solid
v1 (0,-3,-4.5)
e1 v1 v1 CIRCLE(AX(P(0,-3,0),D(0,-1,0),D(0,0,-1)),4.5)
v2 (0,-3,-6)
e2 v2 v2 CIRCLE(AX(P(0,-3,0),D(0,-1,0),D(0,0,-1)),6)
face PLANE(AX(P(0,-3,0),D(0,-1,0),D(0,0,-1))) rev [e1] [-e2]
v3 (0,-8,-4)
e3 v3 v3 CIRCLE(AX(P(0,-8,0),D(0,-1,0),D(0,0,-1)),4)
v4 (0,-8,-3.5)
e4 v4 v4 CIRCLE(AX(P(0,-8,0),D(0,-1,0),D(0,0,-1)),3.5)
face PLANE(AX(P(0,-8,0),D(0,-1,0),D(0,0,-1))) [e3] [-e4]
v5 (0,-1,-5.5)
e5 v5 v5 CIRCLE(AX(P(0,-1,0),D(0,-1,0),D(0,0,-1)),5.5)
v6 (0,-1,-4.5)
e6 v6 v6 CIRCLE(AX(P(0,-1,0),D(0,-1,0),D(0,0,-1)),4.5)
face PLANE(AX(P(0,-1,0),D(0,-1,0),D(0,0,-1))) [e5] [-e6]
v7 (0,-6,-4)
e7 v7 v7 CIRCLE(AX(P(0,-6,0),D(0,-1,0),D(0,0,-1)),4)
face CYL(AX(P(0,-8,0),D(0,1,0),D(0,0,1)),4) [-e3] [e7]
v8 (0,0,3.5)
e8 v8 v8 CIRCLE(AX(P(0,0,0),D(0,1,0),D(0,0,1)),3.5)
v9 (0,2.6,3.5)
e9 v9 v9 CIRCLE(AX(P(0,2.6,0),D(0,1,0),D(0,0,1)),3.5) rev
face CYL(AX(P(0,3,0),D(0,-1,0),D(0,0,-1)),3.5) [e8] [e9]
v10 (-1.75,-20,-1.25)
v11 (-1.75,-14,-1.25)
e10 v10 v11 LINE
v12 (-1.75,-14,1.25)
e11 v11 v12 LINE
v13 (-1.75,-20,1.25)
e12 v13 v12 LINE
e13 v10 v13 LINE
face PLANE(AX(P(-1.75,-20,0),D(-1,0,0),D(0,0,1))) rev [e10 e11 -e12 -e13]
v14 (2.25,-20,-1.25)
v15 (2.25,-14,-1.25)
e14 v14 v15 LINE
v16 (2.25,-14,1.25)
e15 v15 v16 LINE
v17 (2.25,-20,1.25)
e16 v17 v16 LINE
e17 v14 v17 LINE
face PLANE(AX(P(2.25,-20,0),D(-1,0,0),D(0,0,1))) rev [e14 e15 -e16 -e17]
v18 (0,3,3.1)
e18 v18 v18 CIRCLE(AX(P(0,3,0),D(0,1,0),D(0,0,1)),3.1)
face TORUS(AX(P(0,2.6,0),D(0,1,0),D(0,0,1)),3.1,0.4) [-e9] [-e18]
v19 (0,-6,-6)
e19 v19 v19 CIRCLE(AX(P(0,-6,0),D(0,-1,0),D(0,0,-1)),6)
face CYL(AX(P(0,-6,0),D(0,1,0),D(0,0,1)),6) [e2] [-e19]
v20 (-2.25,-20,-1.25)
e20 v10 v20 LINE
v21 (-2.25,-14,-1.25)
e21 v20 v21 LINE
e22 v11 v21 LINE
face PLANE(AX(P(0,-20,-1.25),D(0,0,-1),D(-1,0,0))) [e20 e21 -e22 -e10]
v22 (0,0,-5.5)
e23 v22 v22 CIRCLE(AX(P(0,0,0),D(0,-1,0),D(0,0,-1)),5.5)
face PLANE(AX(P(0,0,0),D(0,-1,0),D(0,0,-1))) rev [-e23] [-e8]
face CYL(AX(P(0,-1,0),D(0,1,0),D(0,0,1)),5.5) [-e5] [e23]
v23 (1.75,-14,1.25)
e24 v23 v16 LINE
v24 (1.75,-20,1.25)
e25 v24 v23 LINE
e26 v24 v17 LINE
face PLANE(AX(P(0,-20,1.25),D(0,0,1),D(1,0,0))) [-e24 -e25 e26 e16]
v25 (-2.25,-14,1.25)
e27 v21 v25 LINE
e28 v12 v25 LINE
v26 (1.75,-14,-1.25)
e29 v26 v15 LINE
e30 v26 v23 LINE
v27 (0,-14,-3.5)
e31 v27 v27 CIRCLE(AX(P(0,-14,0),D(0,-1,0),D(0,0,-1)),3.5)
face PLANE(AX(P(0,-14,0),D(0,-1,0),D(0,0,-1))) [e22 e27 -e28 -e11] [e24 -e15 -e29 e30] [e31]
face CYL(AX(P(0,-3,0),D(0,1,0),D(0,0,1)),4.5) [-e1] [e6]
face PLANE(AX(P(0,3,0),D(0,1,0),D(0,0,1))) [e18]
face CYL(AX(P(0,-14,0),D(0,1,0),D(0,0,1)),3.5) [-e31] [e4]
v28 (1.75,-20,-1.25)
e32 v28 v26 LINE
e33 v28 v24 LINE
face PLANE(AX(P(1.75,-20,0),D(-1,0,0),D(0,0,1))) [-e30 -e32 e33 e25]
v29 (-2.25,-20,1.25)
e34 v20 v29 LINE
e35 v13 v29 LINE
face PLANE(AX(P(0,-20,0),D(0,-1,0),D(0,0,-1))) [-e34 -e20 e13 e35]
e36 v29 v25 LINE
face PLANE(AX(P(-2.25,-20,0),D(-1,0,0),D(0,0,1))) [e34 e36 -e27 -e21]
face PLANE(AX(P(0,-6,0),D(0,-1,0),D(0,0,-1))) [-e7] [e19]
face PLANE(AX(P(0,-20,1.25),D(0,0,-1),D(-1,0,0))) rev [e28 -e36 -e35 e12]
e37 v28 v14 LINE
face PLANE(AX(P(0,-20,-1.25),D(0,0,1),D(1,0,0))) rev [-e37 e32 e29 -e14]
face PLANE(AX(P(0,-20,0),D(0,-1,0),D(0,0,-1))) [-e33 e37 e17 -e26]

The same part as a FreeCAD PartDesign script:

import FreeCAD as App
import Part
import Sketcher


def edges_at(feature, points):
    """Names of the edges that pass closest to the given points."""
    edges = feature.Shape.Edges
    near = lambda p: min(range(len(edges)), key=lambda i: edges[i].distToShape(Part.Vertex(*p))[0])
    return sorted({f"Edge{near(p) + 1}" for p in points})

doc = App.newDocument("Part")
params = doc.addObject("Spreadsheet::Sheet", "Params")
for row, (alias, value) in enumerate([
    ("sketch1_diameter", "7 mm"),
    ("pad1_length", "3 mm"),
    ("fillet_radius", "0.4 mm"),
    ("sketch2_diameter", "11 mm"),
    ("pad2_length", "1 mm"),
    ("sketch3_diameter", "9 mm"),
    ("pad3_length", "2 mm"),
    ("sketch4_diameter", "12 mm"),
    ("pad4_length", "3 mm"),
    ("sketch5_diameter", "8 mm"),
    ("pad5_length", "2 mm"),
    ("sketch6_diameter", "7 mm"),
    ("pad6_length", "6 mm"),
    ("sketch7_width", "0.5 mm"),
    ("sketch7_height", "2.5 mm"),
    ("pad7_length", "6 mm"),
], start=1):
    params.set(f"A{row}", alias)
    params.set(f"B{row}", "=" + value)
    params.setAlias(f"B{row}", alias)

body = doc.addObject("PartDesign::Body", "Body")

# Sketch on XZ plane
sketch1 = doc.addObject("Sketcher::SketchObject", "Sketch")
body.addObject(sketch1)
sketch1.AttachmentSupport = (doc.XZ_Plane, [""])
sketch1.MapMode = "FlatFace"
sketch1.addGeometry(Part.Circle(App.Vector(0, 0, 0), App.Vector(0, 0, 1), 3.5), False)
sketch1.addConstraint(Sketcher.Constraint("Coincident", 0, 3, -1, 1))
sketch1.addConstraint(Sketcher.Constraint("Diameter", 0, 7.0))
sketch1.setExpression("Constraints[1]", "Params.sketch1_diameter")
pad1 = doc.addObject("PartDesign::Pad", "Pad")
body.addObject(pad1)
pad1.Profile = sketch1
pad1.setExpression("Length", "Params.pad1_length")
pad1.Reversed = True
doc.recompute()

fillet = doc.addObject("PartDesign::Fillet", "Fillet")
body.addObject(fillet)
fillet.Base = (pad1, edges_at(pad1, [(0, 3, -3.5)]))
fillet.setExpression("Radius", "Params.fillet_radius")

# Sketch on XZ plane
sketch2 = doc.addObject("Sketcher::SketchObject", "Sketch001")
body.addObject(sketch2)
sketch2.AttachmentSupport = (doc.XZ_Plane, [""])
sketch2.MapMode = "FlatFace"
sketch2.addGeometry(Part.Circle(App.Vector(0, 0, 0), App.Vector(0, 0, 1), 6), False)
sketch2.addConstraint(Sketcher.Constraint("Coincident", 0, 3, -1, 1))
sketch2.addConstraint(Sketcher.Constraint("Diameter", 0, 11.0))
sketch2.setExpression("Constraints[1]", "Params.sketch2_diameter")
pad2 = doc.addObject("PartDesign::Pad", "Pad001")
body.addObject(pad2)
pad2.Profile = sketch2
pad2.setExpression("Length", "Params.pad2_length")

# Sketch on XZ plane
sketch3 = doc.addObject("Sketcher::SketchObject", "Sketch002")
body.addObject(sketch3)
sketch3.AttachmentSupport = (doc.XZ_Plane, [""])
sketch3.MapMode = "FlatFace"
sketch3.AttachmentOffset = App.Placement(App.Vector(0, 0, 1), App.Rotation())
sketch3.addGeometry(Part.Circle(App.Vector(0, 0, 0), App.Vector(0, 0, 1), 4.5), False)
sketch3.addConstraint(Sketcher.Constraint("Coincident", 0, 3, -1, 1))
sketch3.addConstraint(Sketcher.Constraint("Diameter", 0, 9.0))
sketch3.setExpression("Constraints[1]", "Params.sketch3_diameter")
pad3 = doc.addObject("PartDesign::Pad", "Pad002")
body.addObject(pad3)
pad3.Profile = sketch3
pad3.setExpression("Length", "Params.pad3_length")

# Sketch on XZ plane
sketch4 = doc.addObject("Sketcher::SketchObject", "Sketch003")
body.addObject(sketch4)
sketch4.AttachmentSupport = (doc.XZ_Plane, [""])
sketch4.MapMode = "FlatFace"
sketch4.AttachmentOffset = App.Placement(App.Vector(0, 0, 3), App.Rotation())
sketch4.addGeometry(Part.Circle(App.Vector(0, 0, 0), App.Vector(0, 0, 1), 6), False)
sketch4.addConstraint(Sketcher.Constraint("Coincident", 0, 3, -1, 1))
sketch4.addConstraint(Sketcher.Constraint("Diameter", 0, 12.0))
sketch4.setExpression("Constraints[1]", "Params.sketch4_diameter")
pad4 = doc.addObject("PartDesign::Pad", "Pad003")
body.addObject(pad4)
pad4.Profile = sketch4
pad4.setExpression("Length", "Params.pad4_length")

# Sketch on XZ plane
sketch5 = doc.addObject("Sketcher::SketchObject", "Sketch004")
body.addObject(sketch5)
sketch5.AttachmentSupport = (doc.XZ_Plane, [""])
sketch5.MapMode = "FlatFace"
sketch5.AttachmentOffset = App.Placement(App.Vector(0, 0, 6), App.Rotation())
sketch5.addGeometry(Part.Circle(App.Vector(0, 0, 0), App.Vector(0, 0, 1), 4), False)
sketch5.addConstraint(Sketcher.Constraint("Coincident", 0, 3, -1, 1))
sketch5.addConstraint(Sketcher.Constraint("Diameter", 0, 8.0))
sketch5.setExpression("Constraints[1]", "Params.sketch5_diameter")
pad5 = doc.addObject("PartDesign::Pad", "Pad004")
body.addObject(pad5)
pad5.Profile = sketch5
pad5.setExpression("Length", "Params.pad5_length")

# Sketch on XZ plane
sketch6 = doc.addObject("Sketcher::SketchObject", "Sketch005")
body.addObject(sketch6)
sketch6.AttachmentSupport = (doc.XZ_Plane, [""])
sketch6.MapMode = "FlatFace"
sketch6.AttachmentOffset = App.Placement(App.Vector(0, 0, 8), App.Rotation())
sketch6.addGeometry(Part.Circle(App.Vector(0, 0, 0), App.Vector(0, 0, 1), 3.5), False)
sketch6.addConstraint(Sketcher.Constraint("Coincident", 0, 3, -1, 1))
sketch6.addConstraint(Sketcher.Constraint("Diameter", 0, 7.0))
sketch6.setExpression("Constraints[1]", "Params.sketch6_diameter")
pad6 = doc.addObject("PartDesign::Pad", "Pad005")
body.addObject(pad6)
pad6.Profile = sketch6
pad6.setExpression("Length", "Params.pad6_length")

# Sketch on XZ plane
sketch7 = doc.addObject("Sketcher::SketchObject", "Sketch006")
body.addObject(sketch7)
sketch7.AttachmentSupport = (doc.XZ_Plane, [""])
sketch7.MapMode = "FlatFace"
sketch7.AttachmentOffset = App.Placement(App.Vector(0, 0, 14), App.Rotation())
sketch7.addGeometry(Part.LineSegment(App.Vector(1.8, 1.2, 0), App.Vector(1.8, -1.2, 0)), False)
sketch7.addGeometry(Part.LineSegment(App.Vector(1.8, -1.2, 0), App.Vector(2.2, -1.2, 0)), False)
sketch7.addGeometry(Part.LineSegment(App.Vector(2.2, -1.2, 0), App.Vector(2.2, 1.2, 0)), False)
sketch7.addGeometry(Part.LineSegment(App.Vector(2.2, 1.2, 0), App.Vector(1.8, 1.2, 0)), False)
sketch7.addGeometry(Part.LineSegment(App.Vector(-2.2, 1.2, 0), App.Vector(-2.2, -1.2, 0)), False)
sketch7.addGeometry(Part.LineSegment(App.Vector(-2.2, -1.2, 0), App.Vector(-1.8, -1.2, 0)), False)
sketch7.addGeometry(Part.LineSegment(App.Vector(-1.8, -1.2, 0), App.Vector(-1.8, 1.2, 0)), False)
sketch7.addGeometry(Part.LineSegment(App.Vector(-1.8, 1.2, 0), App.Vector(-2.2, 1.2, 0)), False)
sketch7.addConstraint(Sketcher.Constraint("Coincident", 0, 2, 1, 1))
sketch7.addConstraint(Sketcher.Constraint("Coincident", 1, 2, 2, 1))
sketch7.addConstraint(Sketcher.Constraint("Coincident", 2, 2, 3, 1))
sketch7.addConstraint(Sketcher.Constraint("Coincident", 3, 2, 0, 1))
sketch7.addConstraint(Sketcher.Constraint("Coincident", 4, 2, 5, 1))
sketch7.addConstraint(Sketcher.Constraint("Coincident", 5, 2, 6, 1))
sketch7.addConstraint(Sketcher.Constraint("Coincident", 6, 2, 7, 1))
sketch7.addConstraint(Sketcher.Constraint("Coincident", 7, 2, 4, 1))
sketch7.addConstraint(Sketcher.Constraint("Vertical", 0))
sketch7.addConstraint(Sketcher.Constraint("Horizontal", 1))
sketch7.addConstraint(Sketcher.Constraint("Vertical", 2))
sketch7.addConstraint(Sketcher.Constraint("Horizontal", 3))
sketch7.addConstraint(Sketcher.Constraint("Vertical", 4))
sketch7.addConstraint(Sketcher.Constraint("Horizontal", 5))
sketch7.addConstraint(Sketcher.Constraint("Vertical", 6))
sketch7.addConstraint(Sketcher.Constraint("Horizontal", 7))
sketch7.addConstraint(Sketcher.Constraint("Symmetric", 2, 2, 4, 2, -1, 1))
sketch7.addConstraint(Sketcher.Constraint("Symmetric", 0, 2, 6, 2, -1, 1))
sketch7.addConstraint(Sketcher.Constraint("Horizontal", 1, 2, 4, 2))
sketch7.addConstraint(Sketcher.Constraint("DistanceX", 1, 1, 1, 2, 0.5))
sketch7.addConstraint(Sketcher.Constraint("DistanceY", 0, 2, 0, 1, 2.5))
sketch7.addConstraint(Sketcher.Constraint("DistanceX", 4, 2, 0, 2, 4.0))
sketch7.setExpression("Constraints[19]", "Params.sketch7_width")
sketch7.setExpression("Constraints[20]", "Params.sketch7_height")
pad7 = doc.addObject("PartDesign::Pad", "Pad006")
body.addObject(pad7)
pad7.Profile = sketch7
pad7.setExpression("Length", "Params.pad7_length")

doc.recompute()
